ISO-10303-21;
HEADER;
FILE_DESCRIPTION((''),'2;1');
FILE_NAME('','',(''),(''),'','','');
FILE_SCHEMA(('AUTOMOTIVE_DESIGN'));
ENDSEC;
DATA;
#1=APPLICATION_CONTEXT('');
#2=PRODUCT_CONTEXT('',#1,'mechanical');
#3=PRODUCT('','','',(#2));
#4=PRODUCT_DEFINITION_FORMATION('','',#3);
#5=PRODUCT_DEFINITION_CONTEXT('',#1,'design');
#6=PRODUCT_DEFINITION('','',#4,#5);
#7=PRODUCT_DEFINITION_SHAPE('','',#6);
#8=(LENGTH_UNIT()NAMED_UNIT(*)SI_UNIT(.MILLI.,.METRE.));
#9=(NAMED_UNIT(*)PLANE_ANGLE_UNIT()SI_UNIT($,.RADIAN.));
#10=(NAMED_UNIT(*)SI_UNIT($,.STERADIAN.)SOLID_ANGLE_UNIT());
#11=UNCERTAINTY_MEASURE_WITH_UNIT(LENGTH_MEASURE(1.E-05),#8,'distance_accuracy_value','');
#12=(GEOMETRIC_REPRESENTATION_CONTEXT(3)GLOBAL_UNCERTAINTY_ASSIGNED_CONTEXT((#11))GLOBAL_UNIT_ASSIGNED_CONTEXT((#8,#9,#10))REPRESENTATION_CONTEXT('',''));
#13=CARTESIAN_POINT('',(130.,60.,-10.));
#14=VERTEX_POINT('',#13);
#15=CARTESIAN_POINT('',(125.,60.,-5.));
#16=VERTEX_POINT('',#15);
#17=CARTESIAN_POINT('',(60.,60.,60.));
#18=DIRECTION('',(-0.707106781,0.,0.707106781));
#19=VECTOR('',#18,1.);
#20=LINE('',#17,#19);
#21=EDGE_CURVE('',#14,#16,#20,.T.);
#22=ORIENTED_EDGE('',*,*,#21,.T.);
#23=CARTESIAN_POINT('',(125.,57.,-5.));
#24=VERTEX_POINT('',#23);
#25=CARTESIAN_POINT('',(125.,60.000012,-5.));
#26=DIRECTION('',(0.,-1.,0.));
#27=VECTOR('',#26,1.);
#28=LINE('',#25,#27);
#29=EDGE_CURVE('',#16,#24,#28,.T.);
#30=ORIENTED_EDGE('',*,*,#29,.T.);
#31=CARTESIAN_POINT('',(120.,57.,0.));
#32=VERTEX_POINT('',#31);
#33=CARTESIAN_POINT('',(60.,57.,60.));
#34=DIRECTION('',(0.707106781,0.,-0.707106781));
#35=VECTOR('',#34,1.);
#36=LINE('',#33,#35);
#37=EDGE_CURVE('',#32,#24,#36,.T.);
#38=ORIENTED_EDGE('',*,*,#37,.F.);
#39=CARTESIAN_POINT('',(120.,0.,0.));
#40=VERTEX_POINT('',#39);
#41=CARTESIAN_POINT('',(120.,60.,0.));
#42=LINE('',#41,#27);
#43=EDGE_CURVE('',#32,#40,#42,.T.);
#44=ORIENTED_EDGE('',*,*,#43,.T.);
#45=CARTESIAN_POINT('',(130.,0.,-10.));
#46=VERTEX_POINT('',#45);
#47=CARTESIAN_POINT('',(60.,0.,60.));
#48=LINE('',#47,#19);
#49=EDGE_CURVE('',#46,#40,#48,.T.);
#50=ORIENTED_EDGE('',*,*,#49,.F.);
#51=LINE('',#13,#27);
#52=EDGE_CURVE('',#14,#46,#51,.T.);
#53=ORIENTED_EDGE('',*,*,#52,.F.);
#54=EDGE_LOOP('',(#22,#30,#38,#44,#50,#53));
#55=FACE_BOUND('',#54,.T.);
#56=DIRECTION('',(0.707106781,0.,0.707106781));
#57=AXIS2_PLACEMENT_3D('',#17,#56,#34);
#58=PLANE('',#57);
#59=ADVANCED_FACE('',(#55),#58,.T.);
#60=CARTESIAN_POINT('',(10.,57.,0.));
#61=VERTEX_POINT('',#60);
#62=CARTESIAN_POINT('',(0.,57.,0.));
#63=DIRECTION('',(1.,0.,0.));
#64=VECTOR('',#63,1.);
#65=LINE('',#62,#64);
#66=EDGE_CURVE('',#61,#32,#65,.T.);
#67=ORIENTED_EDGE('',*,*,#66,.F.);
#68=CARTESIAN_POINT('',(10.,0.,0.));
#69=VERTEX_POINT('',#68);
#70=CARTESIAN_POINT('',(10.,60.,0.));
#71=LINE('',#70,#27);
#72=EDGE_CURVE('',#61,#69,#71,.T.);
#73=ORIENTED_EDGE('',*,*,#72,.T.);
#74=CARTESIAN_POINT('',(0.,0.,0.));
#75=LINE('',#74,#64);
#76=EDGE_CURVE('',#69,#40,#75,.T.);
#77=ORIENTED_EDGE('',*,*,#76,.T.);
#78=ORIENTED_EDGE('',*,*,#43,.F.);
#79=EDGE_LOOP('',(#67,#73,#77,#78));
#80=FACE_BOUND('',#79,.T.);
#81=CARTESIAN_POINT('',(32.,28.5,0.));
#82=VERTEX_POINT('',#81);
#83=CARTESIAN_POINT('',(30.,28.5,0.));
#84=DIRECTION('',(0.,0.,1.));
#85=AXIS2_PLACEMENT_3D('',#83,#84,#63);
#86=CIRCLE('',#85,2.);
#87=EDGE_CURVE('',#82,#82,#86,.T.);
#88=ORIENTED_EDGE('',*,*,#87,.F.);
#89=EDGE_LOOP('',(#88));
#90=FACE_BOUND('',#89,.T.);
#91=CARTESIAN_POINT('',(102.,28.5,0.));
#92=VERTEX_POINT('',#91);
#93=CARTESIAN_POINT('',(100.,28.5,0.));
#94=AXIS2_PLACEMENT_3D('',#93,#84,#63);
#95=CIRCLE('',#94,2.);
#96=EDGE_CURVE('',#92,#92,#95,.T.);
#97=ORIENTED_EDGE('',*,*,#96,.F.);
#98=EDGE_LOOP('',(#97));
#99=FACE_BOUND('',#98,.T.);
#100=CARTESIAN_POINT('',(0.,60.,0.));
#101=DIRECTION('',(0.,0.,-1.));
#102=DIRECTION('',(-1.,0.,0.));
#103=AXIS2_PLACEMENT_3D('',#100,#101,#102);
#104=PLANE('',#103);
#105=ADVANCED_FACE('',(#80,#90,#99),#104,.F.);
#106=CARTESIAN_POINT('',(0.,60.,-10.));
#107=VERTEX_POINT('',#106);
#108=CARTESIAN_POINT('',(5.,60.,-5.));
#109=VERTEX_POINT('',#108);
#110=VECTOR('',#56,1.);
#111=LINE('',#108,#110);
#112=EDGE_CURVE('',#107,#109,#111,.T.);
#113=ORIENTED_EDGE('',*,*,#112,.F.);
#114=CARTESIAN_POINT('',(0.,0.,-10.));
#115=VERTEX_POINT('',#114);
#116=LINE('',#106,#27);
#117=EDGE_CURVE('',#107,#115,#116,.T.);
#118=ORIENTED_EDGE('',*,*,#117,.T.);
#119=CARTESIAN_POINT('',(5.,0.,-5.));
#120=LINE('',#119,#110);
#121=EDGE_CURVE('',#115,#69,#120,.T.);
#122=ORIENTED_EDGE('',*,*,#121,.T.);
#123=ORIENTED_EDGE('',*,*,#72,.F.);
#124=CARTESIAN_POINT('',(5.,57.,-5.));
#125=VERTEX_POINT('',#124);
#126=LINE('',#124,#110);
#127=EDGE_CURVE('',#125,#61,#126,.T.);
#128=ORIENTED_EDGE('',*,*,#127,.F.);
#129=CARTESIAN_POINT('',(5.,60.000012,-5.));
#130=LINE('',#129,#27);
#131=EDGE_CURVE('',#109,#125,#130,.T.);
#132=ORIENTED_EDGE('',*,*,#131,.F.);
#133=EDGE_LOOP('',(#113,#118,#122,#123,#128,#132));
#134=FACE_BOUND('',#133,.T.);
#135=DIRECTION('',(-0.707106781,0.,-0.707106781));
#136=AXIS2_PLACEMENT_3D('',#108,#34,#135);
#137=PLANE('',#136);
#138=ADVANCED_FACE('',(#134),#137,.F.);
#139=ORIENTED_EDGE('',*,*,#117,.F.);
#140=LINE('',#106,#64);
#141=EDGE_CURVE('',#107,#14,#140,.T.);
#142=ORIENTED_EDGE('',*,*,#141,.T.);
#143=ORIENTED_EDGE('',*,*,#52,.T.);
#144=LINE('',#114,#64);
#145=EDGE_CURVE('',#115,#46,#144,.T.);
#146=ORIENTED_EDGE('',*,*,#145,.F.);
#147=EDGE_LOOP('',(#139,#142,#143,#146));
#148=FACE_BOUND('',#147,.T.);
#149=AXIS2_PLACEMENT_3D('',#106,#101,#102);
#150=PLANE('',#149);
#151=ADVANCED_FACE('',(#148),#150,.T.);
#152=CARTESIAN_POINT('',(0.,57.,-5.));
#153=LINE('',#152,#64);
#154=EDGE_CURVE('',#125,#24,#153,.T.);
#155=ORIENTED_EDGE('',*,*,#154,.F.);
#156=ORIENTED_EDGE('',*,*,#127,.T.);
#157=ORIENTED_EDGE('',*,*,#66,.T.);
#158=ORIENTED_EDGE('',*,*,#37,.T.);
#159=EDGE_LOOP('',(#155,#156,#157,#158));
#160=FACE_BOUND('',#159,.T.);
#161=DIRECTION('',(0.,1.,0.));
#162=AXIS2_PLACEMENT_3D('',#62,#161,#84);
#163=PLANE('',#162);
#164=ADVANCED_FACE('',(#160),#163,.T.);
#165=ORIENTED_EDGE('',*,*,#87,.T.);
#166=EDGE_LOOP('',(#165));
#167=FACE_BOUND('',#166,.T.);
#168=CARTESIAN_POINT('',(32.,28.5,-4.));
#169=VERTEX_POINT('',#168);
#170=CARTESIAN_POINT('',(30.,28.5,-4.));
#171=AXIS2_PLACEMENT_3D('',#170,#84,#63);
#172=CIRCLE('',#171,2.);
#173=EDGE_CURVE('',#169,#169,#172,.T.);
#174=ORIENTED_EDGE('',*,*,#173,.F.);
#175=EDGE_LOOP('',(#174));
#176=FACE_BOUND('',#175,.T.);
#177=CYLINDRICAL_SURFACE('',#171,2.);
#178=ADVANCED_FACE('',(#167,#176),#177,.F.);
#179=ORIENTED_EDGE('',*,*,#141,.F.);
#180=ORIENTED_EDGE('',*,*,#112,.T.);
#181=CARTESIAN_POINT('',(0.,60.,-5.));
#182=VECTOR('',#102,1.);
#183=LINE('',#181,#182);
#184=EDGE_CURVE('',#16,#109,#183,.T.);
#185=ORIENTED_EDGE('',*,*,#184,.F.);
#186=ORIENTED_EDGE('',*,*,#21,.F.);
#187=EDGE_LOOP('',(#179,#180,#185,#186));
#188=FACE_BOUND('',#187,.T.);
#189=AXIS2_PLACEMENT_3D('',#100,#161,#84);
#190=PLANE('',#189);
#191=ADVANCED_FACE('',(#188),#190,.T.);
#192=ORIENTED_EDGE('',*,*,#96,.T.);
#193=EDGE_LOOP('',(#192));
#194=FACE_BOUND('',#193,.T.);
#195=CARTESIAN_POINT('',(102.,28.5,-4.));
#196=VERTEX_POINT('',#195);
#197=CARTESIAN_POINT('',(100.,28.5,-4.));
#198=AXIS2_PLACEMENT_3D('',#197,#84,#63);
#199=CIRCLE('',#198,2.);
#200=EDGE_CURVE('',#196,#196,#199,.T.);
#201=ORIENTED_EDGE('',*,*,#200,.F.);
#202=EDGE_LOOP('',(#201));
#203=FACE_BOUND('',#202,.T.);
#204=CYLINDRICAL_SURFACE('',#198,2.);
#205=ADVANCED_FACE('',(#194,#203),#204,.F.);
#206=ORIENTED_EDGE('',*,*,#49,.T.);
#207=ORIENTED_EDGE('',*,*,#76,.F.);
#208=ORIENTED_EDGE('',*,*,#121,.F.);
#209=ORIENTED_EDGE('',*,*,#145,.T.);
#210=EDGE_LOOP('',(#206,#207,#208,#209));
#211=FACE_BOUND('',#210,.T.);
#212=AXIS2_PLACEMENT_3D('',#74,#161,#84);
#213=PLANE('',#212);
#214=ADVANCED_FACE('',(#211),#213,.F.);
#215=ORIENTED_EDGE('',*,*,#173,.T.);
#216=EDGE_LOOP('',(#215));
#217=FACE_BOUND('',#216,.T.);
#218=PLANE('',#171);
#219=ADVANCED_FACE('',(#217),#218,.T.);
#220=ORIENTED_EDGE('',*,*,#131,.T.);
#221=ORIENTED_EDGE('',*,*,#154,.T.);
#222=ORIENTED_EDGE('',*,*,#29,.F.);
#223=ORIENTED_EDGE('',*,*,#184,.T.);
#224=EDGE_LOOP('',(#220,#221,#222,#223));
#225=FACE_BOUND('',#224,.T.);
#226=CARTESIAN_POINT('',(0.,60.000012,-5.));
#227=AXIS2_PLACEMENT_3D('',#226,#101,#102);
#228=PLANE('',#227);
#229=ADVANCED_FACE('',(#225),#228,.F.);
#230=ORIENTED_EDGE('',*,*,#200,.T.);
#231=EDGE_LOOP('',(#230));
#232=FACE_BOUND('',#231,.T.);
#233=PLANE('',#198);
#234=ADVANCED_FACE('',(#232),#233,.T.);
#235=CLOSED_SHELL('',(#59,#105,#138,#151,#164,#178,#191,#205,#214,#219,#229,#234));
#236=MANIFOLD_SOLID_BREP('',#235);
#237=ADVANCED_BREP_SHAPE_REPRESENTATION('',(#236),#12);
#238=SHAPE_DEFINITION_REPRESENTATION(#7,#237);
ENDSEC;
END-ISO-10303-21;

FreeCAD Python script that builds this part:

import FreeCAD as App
import Part
import Sketcher

V = App.Vector

doc = App.newDocument("Part")
body = doc.addObject("PartDesign::Body", "Body")

# Sketch on XZ plane
sketch1 = body.newObject("Sketcher::SketchObject", "Sketch")
sketch1.AttachmentSupport = (doc.getObject("XZ_Plane"), [""])
sketch1.MapMode = "FlatFace"
sketch1.addGeometry(Part.LineSegment(V(130, -10, 0), V(0, -10, 0)), False)
sketch1.addGeometry(Part.LineSegment(V(0, -10, 0), V(10, 0, 0)), False)
sketch1.addGeometry(Part.LineSegment(V(10, 0, 0), V(120, 0, 0)), False)
sketch1.addGeometry(Part.LineSegment(V(120, 0, 0), V(130, -10, 0)), False)
sketch1.addConstraint(Sketcher.Constraint("Coincident", 0, 2, 1, 1))
sketch1.addConstraint(Sketcher.Constraint("Coincident", 1, 2, 2, 1))
sketch1.addConstraint(Sketcher.Constraint("Coincident", 2, 2, 3, 1))
sketch1.addConstraint(Sketcher.Constraint("Coincident", 3, 2, 0, 1))
sketch1.addConstraint(Sketcher.Constraint("Horizontal", 0))
sketch1.addConstraint(Sketcher.Constraint("Horizontal", 2))
sketch1.addConstraint(Sketcher.Constraint("PointOnObject", 0, 2, -2))
sketch1.addConstraint(Sketcher.Constraint("PointOnObject", 1, 2, -1))
sketch1.addConstraint(Sketcher.Constraint("Perpendicular", 1, 3))
sketch1.addConstraint(Sketcher.Constraint("Equal", 1, 3))
sketch1.addConstraint(Sketcher.Constraint("DistanceX", 0, 2, 0, 1, 130.0))
sketch1.addConstraint(Sketcher.Constraint("DistanceX", 2, 1, 2, 2, 110.0))
pad1 = body.newObject("PartDesign::Pad", "Pad")
pad1.Profile = sketch1
pad1.Length = 60
pad1.Reversed = True

# Sketch on XZ plane
sketch2 = body.newObject("Sketcher::SketchObject", "Sketch001")
sketch2.AttachmentSupport = (doc.getObject("XZ_Plane"), [""])
sketch2.MapMode = "FlatFace"
sketch2.AttachmentOffset = App.Placement(V(0, 0, -60), App.Rotation())
sketch2.addGeometry(Part.LineSegment(V(125, -5, 0), V(5, -5, 0)), False)
sketch2.addGeometry(Part.LineSegment(V(5, -5, 0), V(10, 0, 0)), False)
sketch2.addGeometry(Part.LineSegment(V(10, 0, 0), V(120, 0, 0)), False)
sketch2.addGeometry(Part.LineSegment(V(120, 0, 0), V(125, -5, 0)), False)
sketch2.addConstraint(Sketcher.Constraint("Coincident", 0, 2, 1, 1))
sketch2.addConstraint(Sketcher.Constraint("Coincident", 1, 2, 2, 1))
sketch2.addConstraint(Sketcher.Constraint("Coincident", 2, 2, 3, 1))
sketch2.addConstraint(Sketcher.Constraint("Coincident", 3, 2, 0, 1))
sketch2.addConstraint(Sketcher.Constraint("Horizontal", 0))
sketch2.addConstraint(Sketcher.Constraint("Horizontal", 2))
sketch2.addConstraint(Sketcher.Constraint("PointOnObject", 1, 2, -1))
sketch2.addConstraint(Sketcher.Constraint("Perpendicular", 1, 3))
sketch2.addConstraint(Sketcher.Constraint("Equal", 1, 3))
sketch2.addConstraint(Sketcher.Constraint("DistanceX", 0, 2, 0, 1, 120.0))
sketch2.addConstraint(Sketcher.Constraint("DistanceX", 2, 1, 2, 2, 110.0))
sketch2.addConstraint(Sketcher.Constraint("DistanceX", -1, 1, 0, 2, 5.0))
pocket1 = body.newObject("PartDesign::Pocket", "Pocket")
pocket1.Profile = sketch2
pocket1.Type = "TwoLengths"
pocket1.Length = 144.527001
pocket1.Length2 = 3

# Sketch on XY plane
sketch3 = body.newObject("Sketcher::SketchObject", "Sketch002")
sketch3.AttachmentSupport = (doc.getObject("XY_Plane"), [""])
sketch3.MapMode = "FlatFace"
sketch3.addGeometry(Part.Circle(V(30, 28.5, 0), V(0, 0, 1), 2), False)
sketch3.addGeometry(Part.Circle(V(100, 28.5, 0), V(0, 0, 1), 2), False)
sketch3.addConstraint(Sketcher.Constraint("Equal", 0, 1))
sketch3.addConstraint(Sketcher.Constraint("Horizontal", 0, 3, 1, 3))
sketch3.addConstraint(Sketcher.Constraint("Diameter", 0, 4.0))
sketch3.addConstraint(Sketcher.Constraint("DistanceX", -1, 1, 0, 3, 30.0))
sketch3.addConstraint(Sketcher.Constraint("DistanceX", -1, 1, 1, 3, 100.0))
sketch3.addConstraint(Sketcher.Constraint("DistanceY", -1, 1, 0, 3, 28.5))
pocket2 = body.newObject("PartDesign::Pocket", "Pocket001")
pocket2.Profile = sketch3
pocket2.Length = 4

doc.recompute()
